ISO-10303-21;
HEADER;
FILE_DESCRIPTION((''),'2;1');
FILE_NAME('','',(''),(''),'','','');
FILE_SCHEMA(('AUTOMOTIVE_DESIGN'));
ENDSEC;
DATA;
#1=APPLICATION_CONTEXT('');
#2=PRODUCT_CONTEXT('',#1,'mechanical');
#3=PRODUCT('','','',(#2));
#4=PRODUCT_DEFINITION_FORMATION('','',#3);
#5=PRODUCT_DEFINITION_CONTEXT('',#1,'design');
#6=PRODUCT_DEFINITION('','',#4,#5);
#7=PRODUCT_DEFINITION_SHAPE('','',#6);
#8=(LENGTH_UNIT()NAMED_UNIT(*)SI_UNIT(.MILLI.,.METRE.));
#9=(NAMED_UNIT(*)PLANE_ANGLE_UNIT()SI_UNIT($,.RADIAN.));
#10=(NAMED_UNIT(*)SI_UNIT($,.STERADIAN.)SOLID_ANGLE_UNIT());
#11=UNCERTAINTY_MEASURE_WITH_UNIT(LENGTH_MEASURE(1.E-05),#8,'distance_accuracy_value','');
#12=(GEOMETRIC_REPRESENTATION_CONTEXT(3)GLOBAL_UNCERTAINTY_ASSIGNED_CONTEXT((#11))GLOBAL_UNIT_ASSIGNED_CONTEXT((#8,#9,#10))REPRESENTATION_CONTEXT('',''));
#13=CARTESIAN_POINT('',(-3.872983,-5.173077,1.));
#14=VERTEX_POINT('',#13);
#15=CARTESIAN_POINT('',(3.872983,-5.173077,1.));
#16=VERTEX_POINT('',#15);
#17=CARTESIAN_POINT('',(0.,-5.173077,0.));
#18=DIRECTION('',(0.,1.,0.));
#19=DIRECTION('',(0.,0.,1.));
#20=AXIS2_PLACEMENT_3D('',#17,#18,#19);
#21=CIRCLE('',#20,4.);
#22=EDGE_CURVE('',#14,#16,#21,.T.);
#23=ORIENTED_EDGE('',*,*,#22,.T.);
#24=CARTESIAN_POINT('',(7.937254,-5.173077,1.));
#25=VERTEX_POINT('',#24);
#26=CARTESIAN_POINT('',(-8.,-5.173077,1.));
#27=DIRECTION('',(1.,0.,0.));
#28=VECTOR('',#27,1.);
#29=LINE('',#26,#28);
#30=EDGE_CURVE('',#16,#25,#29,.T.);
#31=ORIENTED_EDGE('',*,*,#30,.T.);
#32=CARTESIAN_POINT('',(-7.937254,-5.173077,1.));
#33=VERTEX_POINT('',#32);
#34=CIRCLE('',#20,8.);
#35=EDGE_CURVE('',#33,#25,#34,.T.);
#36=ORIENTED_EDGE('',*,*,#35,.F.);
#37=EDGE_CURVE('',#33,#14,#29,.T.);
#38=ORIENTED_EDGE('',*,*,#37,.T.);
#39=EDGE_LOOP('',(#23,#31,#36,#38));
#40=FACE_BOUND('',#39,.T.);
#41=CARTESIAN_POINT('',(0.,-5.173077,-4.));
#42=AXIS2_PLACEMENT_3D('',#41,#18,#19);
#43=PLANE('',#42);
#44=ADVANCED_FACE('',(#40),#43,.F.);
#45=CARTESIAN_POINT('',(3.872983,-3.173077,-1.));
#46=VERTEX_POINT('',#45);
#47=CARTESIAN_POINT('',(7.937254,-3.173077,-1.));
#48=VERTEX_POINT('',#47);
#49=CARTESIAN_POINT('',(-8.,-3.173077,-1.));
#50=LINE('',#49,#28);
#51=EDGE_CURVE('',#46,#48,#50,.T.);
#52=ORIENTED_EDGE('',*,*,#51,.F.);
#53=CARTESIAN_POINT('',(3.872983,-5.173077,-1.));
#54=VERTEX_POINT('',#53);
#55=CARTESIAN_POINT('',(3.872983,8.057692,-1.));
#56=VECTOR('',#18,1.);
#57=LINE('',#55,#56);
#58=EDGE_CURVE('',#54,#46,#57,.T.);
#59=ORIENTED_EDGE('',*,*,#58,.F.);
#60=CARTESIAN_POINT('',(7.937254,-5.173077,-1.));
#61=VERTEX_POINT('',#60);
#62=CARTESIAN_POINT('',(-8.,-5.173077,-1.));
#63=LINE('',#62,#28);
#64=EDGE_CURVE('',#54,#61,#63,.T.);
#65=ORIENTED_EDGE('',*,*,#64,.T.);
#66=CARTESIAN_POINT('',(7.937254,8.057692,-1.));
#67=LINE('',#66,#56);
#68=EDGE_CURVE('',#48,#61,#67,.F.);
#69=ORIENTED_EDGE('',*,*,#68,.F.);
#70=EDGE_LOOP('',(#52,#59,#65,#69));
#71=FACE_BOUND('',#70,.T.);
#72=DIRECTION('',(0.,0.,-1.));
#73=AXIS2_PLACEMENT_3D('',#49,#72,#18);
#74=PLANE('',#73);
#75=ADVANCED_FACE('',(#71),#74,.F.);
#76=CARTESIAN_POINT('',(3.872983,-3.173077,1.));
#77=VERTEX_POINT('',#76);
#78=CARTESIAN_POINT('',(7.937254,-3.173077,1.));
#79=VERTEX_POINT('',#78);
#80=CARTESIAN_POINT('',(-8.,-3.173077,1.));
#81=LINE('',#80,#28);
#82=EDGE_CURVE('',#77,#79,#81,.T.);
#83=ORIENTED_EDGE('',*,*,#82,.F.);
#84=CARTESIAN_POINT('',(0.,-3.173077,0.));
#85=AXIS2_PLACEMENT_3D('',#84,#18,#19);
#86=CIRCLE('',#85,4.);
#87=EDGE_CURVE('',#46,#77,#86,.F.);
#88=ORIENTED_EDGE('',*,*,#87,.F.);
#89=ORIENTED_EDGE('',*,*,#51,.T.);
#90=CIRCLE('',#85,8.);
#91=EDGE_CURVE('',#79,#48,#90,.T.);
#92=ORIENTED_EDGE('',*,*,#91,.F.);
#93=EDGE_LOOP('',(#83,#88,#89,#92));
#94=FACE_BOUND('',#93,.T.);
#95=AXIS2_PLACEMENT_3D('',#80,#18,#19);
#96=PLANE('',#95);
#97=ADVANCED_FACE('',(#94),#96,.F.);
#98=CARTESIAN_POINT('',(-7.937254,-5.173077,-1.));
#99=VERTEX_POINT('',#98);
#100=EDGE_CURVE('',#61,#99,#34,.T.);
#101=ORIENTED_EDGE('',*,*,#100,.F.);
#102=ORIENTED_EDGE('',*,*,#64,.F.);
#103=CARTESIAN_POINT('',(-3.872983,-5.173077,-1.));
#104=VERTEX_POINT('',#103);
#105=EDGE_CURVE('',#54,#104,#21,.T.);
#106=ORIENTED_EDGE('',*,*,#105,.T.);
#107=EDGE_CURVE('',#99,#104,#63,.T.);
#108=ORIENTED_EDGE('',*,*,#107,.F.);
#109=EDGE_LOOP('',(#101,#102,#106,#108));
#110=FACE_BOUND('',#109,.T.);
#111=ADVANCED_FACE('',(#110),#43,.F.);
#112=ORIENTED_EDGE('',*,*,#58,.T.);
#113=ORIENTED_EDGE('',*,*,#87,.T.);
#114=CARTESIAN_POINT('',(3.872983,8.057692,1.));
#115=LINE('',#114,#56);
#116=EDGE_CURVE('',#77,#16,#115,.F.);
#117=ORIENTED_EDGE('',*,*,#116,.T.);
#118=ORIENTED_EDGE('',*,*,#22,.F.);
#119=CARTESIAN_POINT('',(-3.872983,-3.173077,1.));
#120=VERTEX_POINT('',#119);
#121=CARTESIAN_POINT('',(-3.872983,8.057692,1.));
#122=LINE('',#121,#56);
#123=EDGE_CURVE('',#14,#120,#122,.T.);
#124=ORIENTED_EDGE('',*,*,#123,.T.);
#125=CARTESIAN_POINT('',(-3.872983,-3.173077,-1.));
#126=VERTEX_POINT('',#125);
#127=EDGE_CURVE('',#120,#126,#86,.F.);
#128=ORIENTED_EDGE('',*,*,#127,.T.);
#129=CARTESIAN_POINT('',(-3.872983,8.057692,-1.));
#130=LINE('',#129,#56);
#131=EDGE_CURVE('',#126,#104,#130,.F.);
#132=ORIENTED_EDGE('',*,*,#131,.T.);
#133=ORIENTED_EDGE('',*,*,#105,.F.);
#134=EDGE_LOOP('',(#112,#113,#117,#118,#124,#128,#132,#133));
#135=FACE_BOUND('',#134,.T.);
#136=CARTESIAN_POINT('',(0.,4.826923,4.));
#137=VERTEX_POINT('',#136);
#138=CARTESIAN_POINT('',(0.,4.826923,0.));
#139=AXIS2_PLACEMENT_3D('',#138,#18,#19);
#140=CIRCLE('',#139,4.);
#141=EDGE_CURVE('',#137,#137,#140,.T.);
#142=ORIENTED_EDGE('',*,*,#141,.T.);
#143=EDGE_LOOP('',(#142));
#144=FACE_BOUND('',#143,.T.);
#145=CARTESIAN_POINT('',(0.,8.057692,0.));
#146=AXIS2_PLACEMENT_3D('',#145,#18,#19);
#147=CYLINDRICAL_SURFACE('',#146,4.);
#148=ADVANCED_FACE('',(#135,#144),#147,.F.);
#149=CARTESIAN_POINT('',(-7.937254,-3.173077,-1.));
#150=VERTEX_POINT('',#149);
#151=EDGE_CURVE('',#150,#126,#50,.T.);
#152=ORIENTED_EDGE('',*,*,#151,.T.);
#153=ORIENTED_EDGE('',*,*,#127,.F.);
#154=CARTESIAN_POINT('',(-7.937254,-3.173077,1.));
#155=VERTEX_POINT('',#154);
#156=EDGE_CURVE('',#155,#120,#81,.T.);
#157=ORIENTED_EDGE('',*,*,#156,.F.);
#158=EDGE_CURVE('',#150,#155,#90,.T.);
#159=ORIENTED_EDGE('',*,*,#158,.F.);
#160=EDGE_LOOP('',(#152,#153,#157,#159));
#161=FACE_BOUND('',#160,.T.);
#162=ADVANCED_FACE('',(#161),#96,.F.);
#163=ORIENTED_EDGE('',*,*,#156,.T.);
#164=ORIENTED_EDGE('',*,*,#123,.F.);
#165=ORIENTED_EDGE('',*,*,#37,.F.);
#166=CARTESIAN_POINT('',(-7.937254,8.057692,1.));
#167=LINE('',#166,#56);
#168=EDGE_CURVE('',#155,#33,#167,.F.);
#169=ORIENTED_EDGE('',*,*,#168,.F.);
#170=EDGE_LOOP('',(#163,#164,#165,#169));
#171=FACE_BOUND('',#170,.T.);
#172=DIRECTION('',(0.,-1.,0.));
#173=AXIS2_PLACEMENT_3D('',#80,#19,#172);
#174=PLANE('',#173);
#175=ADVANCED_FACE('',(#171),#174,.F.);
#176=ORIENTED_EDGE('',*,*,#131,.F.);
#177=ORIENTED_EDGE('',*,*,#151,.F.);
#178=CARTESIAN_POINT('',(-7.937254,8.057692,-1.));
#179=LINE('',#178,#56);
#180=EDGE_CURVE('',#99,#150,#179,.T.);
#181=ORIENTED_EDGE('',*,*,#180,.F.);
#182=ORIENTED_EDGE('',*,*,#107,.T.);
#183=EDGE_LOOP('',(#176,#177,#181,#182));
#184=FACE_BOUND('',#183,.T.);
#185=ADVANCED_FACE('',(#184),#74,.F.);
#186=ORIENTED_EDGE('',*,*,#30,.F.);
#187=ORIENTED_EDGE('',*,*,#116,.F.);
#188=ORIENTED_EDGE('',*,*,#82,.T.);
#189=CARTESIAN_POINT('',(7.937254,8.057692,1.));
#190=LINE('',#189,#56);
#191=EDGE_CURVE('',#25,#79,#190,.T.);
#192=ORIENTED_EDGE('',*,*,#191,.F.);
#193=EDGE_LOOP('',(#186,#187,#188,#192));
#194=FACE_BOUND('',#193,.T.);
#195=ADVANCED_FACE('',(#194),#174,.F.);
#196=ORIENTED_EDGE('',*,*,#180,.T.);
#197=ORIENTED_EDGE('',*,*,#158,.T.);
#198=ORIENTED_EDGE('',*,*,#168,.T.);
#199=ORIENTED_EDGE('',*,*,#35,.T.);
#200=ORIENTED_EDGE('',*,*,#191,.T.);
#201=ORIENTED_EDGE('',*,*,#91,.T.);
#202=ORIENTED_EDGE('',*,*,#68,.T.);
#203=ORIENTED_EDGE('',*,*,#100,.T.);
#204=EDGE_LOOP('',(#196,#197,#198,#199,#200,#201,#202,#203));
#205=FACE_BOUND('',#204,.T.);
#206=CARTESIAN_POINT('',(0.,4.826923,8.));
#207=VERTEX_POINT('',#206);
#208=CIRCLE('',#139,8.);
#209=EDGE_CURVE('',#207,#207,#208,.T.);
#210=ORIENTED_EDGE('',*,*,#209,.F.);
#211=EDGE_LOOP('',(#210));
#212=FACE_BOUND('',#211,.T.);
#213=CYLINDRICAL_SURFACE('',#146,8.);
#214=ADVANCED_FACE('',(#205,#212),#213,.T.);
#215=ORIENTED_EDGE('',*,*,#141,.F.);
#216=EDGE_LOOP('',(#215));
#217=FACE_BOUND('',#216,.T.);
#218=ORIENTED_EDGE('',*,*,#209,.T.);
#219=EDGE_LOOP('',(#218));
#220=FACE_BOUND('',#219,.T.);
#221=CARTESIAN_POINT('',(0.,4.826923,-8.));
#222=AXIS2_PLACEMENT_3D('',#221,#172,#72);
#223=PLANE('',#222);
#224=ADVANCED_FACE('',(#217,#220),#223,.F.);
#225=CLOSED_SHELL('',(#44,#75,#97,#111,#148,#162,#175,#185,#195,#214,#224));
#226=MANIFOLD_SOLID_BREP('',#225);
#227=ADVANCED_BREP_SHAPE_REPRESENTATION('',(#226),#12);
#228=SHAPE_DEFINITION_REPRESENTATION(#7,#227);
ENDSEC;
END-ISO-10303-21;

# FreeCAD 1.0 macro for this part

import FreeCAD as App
import Part
import Sketcher
from FreeCAD import Vector

doc = App.newDocument("Part")
body = doc.addObject("PartDesign::Body", "Body")

# Sketch on YZ plane
sketch1 = doc.addObject("Sketcher::SketchObject", "Sketch")
body.addObject(sketch1)
sketch1.AttachmentSupport = (doc.YZ_Plane, [""])
sketch1.MapMode = "FlatFace"
sketch1.addGeometry(Part.LineSegment(Vector(4.826923, -4, 0), Vector(-5.173077, -4, 0)), False)
sketch1.addGeometry(Part.LineSegment(Vector(-5.173077, -4, 0), Vector(-5.173077, -8, 0)), False)
sketch1.addGeometry(Part.LineSegment(Vector(-5.173077, -8, 0), Vector(4.826923, -8, 0)), False)
sketch1.addGeometry(Part.LineSegment(Vector(4.826923, -8, 0), Vector(4.826923, -4, 0)), False)
sketch1.addConstraint(Sketcher.Constraint("Coincident", 0, 2, 1, 1))
sketch1.addConstraint(Sketcher.Constraint("Coincident", 1, 2, 2, 1))
sketch1.addConstraint(Sketcher.Constraint("Coincident", 2, 2, 3, 1))
sketch1.addConstraint(Sketcher.Constraint("Coincident", 3, 2, 0, 1))
sketch1.addConstraint(Sketcher.Constraint("Horizontal", 0))
sketch1.addConstraint(Sketcher.Constraint("Vertical", 1))
sketch1.addConstraint(Sketcher.Constraint("Horizontal", 2))
sketch1.addConstraint(Sketcher.Constraint("Vertical", 3))
sketch1.addConstraint(Sketcher.Constraint("DistanceX", 0, 2, 0, 1, 10.0))
sketch1.addConstraint(Sketcher.Constraint("DistanceY", 1, 2, 1, 1, 4.0))
sketch1.addConstraint(Sketcher.Constraint("DistanceY", 0, 2, -1, 1, 4.0))
sketch1.addConstraint(Sketcher.Constraint("DistanceX", 0, 2, -1, 1, 5.173077))
revolution = doc.addObject("PartDesign::Revolution", "Revolution")
body.addObject(revolution)
revolution.Profile = sketch1
revolution.ReferenceAxis = (sketch1, ["H_Axis"])
revolution.Angle = 360

# Sketch on YZ plane
sketch2 = doc.addObject("Sketcher::SketchObject", "Sketch001")
body.addObject(sketch2)
sketch2.AttachmentSupport = (doc.YZ_Plane, [""])
sketch2.MapMode = "FlatFace"
sketch2.addGeometry(Part.LineSegment(Vector(-3.173077, 1, 0), Vector(-5.173077, 1, 0)), False)
sketch2.addGeometry(Part.LineSegment(Vector(-5.173077, 1, 0), Vector(-5.173077, -1, 0)), False)
sketch2.addGeometry(Part.LineSegment(Vector(-5.173077, -1, 0), Vector(-3.173077, -1, 0)), False)
sketch2.addGeometry(Part.LineSegment(Vector(-3.173077, -1, 0), Vector(-3.173077, 1, 0)), False)
sketch2.addConstraint(Sketcher.Constraint("Coincident", 0, 2, 1, 1))
sketch2.addConstraint(Sketcher.Constraint("Coincident", 1, 2, 2, 1))
sketch2.addConstraint(Sketcher.Constraint("Coincident", 2, 2, 3, 1))
sketch2.addConstraint(Sketcher.Constraint("Coincident", 3, 2, 0, 1))
sketch2.addConstraint(Sketcher.Constraint("Horizontal", 0))
sketch2.addConstraint(Sketcher.Constraint("Vertical", 1))
sketch2.addConstraint(Sketcher.Constraint("Horizontal", 2))
sketch2.addConstraint(Sketcher.Constraint("Vertical", 3))
sketch2.addConstraint(Sketcher.Constraint("Equal", 2, 1))
sketch2.addConstraint(Sketcher.Constraint("DistanceX", 0, 2, 0, 1, 2.0))
sketch2.addConstraint(Sketcher.Constraint("DistanceY", -1, 1, 0, 2, 1.0))
sketch2.addConstraint(Sketcher.Constraint("DistanceX", 0, 2, -1, 1, 5.173077))
pocket1 = doc.addObject("PartDesign::Pocket", "Pocket")
body.addObject(pocket1)
pocket1.Profile = sketch2
pocket1.Type = "ThroughAll"
pocket1.Midplane = True

doc.recompute()
